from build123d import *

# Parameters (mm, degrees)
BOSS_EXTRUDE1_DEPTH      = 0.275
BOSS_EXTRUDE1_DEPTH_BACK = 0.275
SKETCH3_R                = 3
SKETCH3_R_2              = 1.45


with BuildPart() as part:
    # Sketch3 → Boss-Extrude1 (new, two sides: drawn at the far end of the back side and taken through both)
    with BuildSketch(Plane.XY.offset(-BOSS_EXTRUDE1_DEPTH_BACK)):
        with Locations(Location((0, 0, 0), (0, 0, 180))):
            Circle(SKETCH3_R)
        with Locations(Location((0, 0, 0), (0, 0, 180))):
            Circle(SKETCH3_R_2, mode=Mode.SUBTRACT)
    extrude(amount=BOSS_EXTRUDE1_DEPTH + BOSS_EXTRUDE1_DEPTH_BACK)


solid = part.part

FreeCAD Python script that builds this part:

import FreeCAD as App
import Part
import Sketcher

doc = App.newDocument("Part")
body = doc.addObject("PartDesign::Body", "Body")

sketch1 = body.newObject("Sketcher::SketchObject", "Sketch")
sketch1.AttachmentSupport = (doc.getObject("XY_Plane"), [""])
sketch1.MapMode = "FlatFace"
sketch1.addGeometry([
    Part.Circle(App.Vector(0, 0, 0), App.Vector(0, 0, 1), 3),
    Part.Circle(App.Vector(0, 0, 0), App.Vector(0, 0, 1), 1.45),
], False)
sketch1.addConstraint([
    Sketcher.Constraint("Coincident", 0, 3, -1, 1),
    Sketcher.Constraint("Coincident", 1, 3, -1, 1),
    Sketcher.Constraint("Diameter", 0, 6.0),
    Sketcher.Constraint("Diameter", 1, 2.9),
])
pad1 = body.newObject("PartDesign::Pad", "Pad")
pad1.Profile = sketch1
pad1.Type = "TwoLengths"
pad1.Length = 0.275
pad1.Length2 = 0.275

doc.recompute()
